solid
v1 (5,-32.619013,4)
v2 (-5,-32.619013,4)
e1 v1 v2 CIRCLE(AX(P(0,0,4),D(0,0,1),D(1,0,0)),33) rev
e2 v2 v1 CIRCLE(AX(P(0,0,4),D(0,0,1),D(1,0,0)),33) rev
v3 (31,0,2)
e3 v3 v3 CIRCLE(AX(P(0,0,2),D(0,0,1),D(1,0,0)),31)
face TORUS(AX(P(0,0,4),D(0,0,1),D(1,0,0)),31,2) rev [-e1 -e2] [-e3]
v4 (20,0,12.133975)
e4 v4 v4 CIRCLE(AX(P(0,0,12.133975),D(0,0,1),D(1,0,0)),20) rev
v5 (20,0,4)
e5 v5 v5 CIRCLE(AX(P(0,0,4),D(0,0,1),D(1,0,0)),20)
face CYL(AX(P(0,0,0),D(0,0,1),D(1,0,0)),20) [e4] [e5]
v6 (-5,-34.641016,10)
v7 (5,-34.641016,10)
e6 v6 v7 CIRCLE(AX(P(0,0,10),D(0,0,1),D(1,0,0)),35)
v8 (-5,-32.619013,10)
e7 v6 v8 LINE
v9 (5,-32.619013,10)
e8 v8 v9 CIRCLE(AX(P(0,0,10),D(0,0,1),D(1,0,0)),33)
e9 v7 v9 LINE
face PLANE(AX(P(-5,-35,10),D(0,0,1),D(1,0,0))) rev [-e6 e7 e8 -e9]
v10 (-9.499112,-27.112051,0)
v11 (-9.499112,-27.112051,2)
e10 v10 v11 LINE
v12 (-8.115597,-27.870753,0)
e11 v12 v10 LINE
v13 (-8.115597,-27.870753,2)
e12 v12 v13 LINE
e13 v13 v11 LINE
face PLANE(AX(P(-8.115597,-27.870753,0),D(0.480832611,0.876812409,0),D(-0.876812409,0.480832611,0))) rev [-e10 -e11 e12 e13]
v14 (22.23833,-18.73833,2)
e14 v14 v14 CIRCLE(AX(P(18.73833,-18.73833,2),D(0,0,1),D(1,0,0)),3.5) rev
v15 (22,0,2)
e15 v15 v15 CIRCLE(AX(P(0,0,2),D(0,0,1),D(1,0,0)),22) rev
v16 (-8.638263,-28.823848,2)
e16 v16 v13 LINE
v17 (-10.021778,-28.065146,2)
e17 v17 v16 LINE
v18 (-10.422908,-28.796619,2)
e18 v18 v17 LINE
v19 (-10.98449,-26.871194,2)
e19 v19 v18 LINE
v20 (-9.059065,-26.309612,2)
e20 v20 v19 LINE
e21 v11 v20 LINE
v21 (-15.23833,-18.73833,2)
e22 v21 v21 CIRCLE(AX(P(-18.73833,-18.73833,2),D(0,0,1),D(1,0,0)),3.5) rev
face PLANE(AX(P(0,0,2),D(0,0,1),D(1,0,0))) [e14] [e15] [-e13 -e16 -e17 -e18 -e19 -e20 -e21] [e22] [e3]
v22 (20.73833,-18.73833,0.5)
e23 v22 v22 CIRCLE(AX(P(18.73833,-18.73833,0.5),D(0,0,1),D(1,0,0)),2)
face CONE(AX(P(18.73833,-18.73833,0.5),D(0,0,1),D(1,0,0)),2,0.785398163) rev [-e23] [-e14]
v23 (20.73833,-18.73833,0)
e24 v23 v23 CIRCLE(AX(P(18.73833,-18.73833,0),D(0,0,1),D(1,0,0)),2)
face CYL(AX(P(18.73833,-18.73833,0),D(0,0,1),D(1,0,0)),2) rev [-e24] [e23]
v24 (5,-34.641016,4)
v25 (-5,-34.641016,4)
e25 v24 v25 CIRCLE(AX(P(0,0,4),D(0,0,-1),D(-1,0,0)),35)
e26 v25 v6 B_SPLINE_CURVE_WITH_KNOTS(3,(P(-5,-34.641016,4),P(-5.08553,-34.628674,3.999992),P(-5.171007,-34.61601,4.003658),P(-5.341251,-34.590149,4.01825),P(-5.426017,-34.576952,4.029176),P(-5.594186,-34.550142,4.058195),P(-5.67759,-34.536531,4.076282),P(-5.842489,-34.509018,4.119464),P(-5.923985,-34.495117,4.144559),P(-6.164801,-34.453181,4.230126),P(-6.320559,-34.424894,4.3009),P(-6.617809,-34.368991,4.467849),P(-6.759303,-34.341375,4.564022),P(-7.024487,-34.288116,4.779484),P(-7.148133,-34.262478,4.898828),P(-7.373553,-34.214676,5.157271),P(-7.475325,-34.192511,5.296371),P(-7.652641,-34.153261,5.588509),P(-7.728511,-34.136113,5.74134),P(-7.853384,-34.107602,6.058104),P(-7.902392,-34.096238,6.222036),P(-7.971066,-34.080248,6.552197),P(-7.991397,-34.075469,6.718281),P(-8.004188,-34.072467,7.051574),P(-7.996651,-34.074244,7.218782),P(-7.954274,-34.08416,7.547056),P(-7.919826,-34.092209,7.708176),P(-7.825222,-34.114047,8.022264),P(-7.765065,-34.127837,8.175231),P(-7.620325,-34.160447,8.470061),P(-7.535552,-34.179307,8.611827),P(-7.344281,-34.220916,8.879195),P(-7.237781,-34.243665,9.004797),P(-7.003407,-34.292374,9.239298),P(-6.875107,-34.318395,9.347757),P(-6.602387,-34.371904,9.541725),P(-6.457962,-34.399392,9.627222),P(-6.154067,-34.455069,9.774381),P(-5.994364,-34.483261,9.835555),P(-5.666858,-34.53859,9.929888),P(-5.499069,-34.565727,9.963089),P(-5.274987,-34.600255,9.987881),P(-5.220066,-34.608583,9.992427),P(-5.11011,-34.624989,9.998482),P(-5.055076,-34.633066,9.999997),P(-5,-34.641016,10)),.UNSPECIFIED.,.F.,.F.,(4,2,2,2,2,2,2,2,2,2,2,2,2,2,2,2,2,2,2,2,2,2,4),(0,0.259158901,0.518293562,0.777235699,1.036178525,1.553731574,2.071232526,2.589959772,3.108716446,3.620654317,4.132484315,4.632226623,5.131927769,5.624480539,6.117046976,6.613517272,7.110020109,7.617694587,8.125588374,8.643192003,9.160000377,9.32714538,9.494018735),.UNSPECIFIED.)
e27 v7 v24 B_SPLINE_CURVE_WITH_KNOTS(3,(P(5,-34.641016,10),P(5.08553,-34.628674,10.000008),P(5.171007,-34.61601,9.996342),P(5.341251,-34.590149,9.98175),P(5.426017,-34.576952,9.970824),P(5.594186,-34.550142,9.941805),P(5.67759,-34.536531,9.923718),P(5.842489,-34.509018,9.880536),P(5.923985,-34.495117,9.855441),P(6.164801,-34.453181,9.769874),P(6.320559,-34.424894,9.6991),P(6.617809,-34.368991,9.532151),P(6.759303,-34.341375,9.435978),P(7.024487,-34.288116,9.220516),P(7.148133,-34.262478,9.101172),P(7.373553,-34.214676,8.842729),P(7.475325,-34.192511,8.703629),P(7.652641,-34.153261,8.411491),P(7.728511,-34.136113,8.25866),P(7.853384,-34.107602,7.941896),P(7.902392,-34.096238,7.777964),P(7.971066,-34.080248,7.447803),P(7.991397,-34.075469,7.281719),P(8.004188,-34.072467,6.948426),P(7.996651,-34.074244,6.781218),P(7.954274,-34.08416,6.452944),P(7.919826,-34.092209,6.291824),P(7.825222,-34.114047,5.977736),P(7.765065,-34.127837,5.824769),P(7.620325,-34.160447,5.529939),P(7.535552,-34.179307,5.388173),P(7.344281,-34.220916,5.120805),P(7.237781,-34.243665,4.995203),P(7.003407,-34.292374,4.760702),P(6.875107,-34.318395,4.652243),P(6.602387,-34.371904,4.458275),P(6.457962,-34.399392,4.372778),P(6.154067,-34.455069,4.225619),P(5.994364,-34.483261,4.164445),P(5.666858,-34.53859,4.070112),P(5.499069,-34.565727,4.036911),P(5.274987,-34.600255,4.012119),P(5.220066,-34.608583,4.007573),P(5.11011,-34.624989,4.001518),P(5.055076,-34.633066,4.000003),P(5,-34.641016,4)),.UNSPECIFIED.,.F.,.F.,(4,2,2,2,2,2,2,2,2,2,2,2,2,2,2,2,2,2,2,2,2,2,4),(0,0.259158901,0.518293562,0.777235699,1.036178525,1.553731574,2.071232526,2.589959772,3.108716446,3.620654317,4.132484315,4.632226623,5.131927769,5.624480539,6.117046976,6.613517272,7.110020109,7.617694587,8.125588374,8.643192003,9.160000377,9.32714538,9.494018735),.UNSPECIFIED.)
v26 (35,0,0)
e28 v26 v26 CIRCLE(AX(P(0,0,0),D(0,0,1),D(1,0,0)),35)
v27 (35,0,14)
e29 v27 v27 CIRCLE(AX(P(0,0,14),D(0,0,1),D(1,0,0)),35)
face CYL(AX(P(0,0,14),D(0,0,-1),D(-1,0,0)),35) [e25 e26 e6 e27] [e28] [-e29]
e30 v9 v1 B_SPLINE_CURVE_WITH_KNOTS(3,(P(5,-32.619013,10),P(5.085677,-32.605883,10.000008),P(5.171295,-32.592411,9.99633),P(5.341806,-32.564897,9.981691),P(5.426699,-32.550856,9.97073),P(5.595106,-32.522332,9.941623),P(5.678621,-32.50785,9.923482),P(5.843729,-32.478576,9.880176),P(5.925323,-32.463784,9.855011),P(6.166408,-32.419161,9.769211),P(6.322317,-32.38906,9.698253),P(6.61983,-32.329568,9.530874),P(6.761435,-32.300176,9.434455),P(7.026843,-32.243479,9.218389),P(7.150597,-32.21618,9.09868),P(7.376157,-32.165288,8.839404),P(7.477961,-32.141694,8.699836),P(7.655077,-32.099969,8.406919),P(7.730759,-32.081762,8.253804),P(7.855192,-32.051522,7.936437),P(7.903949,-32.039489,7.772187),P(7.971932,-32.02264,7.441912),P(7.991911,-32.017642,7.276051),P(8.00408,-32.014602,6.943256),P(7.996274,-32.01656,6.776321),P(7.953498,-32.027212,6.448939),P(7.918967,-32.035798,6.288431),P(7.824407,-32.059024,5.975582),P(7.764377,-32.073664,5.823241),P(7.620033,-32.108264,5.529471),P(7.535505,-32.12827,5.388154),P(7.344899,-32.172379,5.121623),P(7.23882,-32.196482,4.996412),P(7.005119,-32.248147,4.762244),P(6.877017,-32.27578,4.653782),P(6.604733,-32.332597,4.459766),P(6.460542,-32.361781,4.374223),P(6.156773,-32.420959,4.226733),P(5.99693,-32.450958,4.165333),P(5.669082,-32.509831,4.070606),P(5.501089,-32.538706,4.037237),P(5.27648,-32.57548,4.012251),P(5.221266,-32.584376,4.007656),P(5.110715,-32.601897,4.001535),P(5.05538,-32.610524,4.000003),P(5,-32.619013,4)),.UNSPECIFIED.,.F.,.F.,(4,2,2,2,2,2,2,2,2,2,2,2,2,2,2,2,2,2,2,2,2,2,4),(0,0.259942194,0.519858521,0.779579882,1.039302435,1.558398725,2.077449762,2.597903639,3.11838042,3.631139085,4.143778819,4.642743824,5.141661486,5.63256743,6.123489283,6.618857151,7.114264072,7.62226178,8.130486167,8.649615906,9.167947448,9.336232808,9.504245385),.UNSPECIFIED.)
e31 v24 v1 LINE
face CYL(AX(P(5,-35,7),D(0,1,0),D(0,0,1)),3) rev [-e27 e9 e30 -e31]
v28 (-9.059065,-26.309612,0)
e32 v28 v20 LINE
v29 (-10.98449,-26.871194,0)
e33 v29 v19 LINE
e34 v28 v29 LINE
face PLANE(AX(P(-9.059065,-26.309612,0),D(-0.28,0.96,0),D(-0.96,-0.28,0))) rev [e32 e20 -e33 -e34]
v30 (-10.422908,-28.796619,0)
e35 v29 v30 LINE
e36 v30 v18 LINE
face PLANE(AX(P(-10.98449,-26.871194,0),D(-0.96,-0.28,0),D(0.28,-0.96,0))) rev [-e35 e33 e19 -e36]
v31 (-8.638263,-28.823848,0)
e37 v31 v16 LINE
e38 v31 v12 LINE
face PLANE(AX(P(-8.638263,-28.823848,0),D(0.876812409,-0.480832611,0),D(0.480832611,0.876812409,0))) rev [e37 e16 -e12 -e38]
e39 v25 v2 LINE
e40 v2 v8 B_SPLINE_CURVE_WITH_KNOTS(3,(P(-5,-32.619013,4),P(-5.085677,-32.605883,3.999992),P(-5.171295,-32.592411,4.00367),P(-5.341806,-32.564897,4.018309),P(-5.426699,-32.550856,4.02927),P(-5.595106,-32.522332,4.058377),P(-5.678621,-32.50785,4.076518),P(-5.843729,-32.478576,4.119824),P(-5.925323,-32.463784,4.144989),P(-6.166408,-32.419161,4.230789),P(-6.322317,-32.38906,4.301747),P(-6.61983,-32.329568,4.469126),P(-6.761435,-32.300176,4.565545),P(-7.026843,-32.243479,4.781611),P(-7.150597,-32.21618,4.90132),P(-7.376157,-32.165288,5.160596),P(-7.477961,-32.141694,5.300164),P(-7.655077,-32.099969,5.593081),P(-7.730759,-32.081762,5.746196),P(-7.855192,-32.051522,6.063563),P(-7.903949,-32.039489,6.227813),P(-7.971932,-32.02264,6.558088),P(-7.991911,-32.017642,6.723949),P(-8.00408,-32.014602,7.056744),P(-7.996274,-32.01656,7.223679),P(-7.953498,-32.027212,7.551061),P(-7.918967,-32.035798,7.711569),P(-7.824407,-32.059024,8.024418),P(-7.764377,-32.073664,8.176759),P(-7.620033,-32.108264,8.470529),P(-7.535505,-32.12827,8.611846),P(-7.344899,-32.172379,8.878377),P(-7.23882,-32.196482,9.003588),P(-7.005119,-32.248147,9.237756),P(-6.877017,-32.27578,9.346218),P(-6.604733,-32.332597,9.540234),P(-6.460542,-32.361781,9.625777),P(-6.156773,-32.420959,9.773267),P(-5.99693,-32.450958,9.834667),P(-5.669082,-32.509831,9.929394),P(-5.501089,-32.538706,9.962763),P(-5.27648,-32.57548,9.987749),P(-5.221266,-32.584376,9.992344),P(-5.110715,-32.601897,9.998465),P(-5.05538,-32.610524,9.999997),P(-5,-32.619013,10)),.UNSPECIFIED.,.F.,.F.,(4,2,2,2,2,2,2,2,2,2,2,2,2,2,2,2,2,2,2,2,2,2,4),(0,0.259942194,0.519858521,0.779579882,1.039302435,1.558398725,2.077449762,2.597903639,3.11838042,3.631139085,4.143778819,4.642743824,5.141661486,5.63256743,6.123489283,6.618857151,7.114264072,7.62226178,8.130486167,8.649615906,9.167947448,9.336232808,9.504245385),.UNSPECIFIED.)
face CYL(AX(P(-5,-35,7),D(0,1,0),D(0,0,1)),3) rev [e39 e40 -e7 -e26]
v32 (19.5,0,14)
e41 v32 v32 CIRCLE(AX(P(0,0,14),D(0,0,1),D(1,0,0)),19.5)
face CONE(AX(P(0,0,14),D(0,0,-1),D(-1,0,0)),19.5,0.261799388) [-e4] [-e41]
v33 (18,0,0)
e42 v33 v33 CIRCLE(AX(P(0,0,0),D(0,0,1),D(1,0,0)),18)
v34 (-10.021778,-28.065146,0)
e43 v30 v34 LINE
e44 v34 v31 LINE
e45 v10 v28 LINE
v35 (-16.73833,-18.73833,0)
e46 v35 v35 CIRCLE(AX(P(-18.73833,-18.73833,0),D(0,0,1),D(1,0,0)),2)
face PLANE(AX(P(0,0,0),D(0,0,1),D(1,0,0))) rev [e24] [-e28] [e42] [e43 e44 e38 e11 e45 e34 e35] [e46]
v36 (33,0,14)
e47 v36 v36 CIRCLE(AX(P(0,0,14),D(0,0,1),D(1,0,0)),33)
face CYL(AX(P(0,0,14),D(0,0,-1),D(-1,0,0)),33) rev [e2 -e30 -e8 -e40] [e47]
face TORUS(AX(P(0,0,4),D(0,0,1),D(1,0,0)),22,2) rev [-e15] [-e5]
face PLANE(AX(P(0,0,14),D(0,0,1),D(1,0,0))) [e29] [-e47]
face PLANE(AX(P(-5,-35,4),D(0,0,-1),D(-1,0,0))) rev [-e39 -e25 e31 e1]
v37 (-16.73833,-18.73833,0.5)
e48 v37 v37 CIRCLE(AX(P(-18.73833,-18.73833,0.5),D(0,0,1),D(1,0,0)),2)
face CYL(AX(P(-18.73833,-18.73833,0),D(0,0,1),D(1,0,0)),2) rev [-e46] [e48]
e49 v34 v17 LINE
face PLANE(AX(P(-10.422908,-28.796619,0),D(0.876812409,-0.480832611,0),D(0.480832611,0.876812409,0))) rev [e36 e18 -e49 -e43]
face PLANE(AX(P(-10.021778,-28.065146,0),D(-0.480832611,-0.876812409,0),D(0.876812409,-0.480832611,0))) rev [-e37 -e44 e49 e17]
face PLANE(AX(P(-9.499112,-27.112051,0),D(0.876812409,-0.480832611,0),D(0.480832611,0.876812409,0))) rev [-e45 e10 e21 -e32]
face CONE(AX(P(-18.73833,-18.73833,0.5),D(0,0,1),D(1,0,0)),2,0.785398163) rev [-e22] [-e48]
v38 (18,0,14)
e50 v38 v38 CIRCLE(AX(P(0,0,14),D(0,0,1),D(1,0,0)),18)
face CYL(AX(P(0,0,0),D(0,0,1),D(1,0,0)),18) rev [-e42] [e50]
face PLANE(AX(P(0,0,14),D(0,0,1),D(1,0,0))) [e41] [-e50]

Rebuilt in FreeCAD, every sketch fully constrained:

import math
import FreeCAD as App
import Part
import Sketcher


def edges_at(feature, points):
    """Names of the edges that pass closest to the given points."""
    edges = feature.Shape.Edges
    near = lambda p: min(range(len(edges)), key=lambda i: edges[i].distToShape(Part.Vertex(*p))[0])
    return sorted({f"Edge{near(p) + 1}" for p in points})


def faces_at(feature, points):
    """Names of the faces that lie closest to the given points."""
    faces = feature.Shape.Faces
    near = lambda p: min(range(len(faces)), key=lambda i: faces[i].distToShape(Part.Vertex(*p))[0])
    return sorted({f"Face{near(p) + 1}" for p in points})


def add_polygon(sketch, points):
    """Adds a closed chain of lines whose ends are joined by coincident constraints."""
    first, n = sketch.GeometryCount, len(points)
    for a, b in zip(points, points[1:] + points[:1]):
        sketch.addGeometry(Part.LineSegment(App.Vector(*a, 0), App.Vector(*b, 0)), False)
    for i in range(n):
        sketch.addConstraint(Sketcher.Constraint("Coincident", first + i, 2, first + (i + 1) % n, 1))

doc = App.newDocument("Part")
params = doc.addObject("Spreadsheet::Sheet", "Params")
for row, (alias, value) in enumerate([
    ("sketch1_diameter", "70 mm"),
    ("pad1_length", "14 mm"),
    ("sketch2_diameter", "36 mm"),
    ("thickness_wall", "2 mm"),
    ("fillet_radius", "2 mm"),
    ("sketch3_radius", "3 mm"),
    ("sketch3_width", "10 mm"),
    ("sketch4_diameter", "4 mm"),
    ("chamfer_size", "1.5 mm"),
    ("chamfer2_size", "0.5 mm"),
    ("chamfer2_size2", "1.866025 mm"),
], start=1):
    params.set(f"A{row}", alias)
    params.set(f"B{row}", "=" + value)
    params.setAlias(f"B{row}", alias)

body = doc.addObject("PartDesign::Body", "Body")

# Sketch on XY plane
sketch1 = body.newObject("Sketcher::SketchObject", "Sketch")
sketch1.AttachmentSupport = (doc.getObject("XY_Plane"), [""])
sketch1.MapMode = "FlatFace"
sketch1.addGeometry(Part.Circle(App.Vector(0, 0, 0), App.Vector(0, 0, 1), 35), False)
sketch1.addConstraint(Sketcher.Constraint("Coincident", 0, 3, -1, 1))
sketch1.addConstraint(Sketcher.Constraint("Diameter", 0, 70.0))
sketch1.setExpression("Constraints[1]", "Params.sketch1_diameter")
pad1 = body.newObject("PartDesign::Pad", "Pad")
pad1.Profile = sketch1
pad1.setExpression("Length", "Params.pad1_length")

# Sketch on XY plane
sketch2 = body.newObject("Sketcher::SketchObject", "Sketch001")
sketch2.AttachmentSupport = (doc.getObject("XY_Plane"), [""])
sketch2.MapMode = "FlatFace"
sketch2.AttachmentOffset = App.Placement(App.Vector(0, 0, 14), App.Rotation())
sketch2.addGeometry(Part.Circle(App.Vector(0, 0, 0), App.Vector(0, 0, 1), 18), False)
sketch2.addConstraint(Sketcher.Constraint("Coincident", 0, 3, -1, 1))
sketch2.addConstraint(Sketcher.Constraint("Diameter", 0, 36.0))
sketch2.setExpression("Constraints[1]", "Params.sketch2_diameter")
pocket1 = body.newObject("PartDesign::Pocket", "Pocket")
pocket1.Profile = sketch2
pocket1.Type = "ThroughAll"
doc.recompute()

thickness = body.newObject("PartDesign::Thickness", "Thickness")
thickness.Base = (pocket1, faces_at(pocket1, [(-14, -14, 14)]))
thickness.setExpression("Value", "Params.thickness_wall")
thickness.Reversed = True
thickness.Join = "Intersection"
doc.recompute()

fillet = body.newObject("PartDesign::Fillet", "Fillet")
fillet.Base = (thickness, edges_at(thickness, [(-33, 0, 2), (-20, 0, 2)]))
fillet.setExpression("Radius", "Params.fillet_radius")

# Sketch on XZ plane
sketch3 = body.newObject("Sketcher::SketchObject", "Sketch002")
sketch3.AttachmentSupport = (doc.getObject("XZ_Plane"), [""])
sketch3.MapMode = "FlatFace"
sketch3.AttachmentOffset = App.Placement(App.Vector(0, 0, 22), App.Rotation())
sketch3.addGeometry(Part.LineSegment(App.Vector(5, 4, 0), App.Vector(-5, 4, 0)), False)
sketch3.addGeometry(Part.ArcOfCircle(Part.Circle(App.Vector(-5, 7, 0), App.Vector(0, 0, 1), 3), math.radians(90), math.radians(270)), False)
sketch3.addGeometry(Part.LineSegment(App.Vector(-5, 10, 0), App.Vector(5, 10, 0)), False)
sketch3.addGeometry(Part.ArcOfCircle(Part.Circle(App.Vector(5, 7, 0), App.Vector(0, 0, 1), 3), math.radians(-90), math.radians(90)), False)
sketch3.addConstraint(Sketcher.Constraint("Tangent", 0, 2, 1, 2))
sketch3.addConstraint(Sketcher.Constraint("Tangent", 1, 1, 2, 1))
sketch3.addConstraint(Sketcher.Constraint("Tangent", 2, 2, 3, 2))
sketch3.addConstraint(Sketcher.Constraint("Tangent", 3, 1, 0, 1))
sketch3.addConstraint(Sketcher.Constraint("Horizontal", 0))
sketch3.addConstraint(Sketcher.Constraint("Horizontal", 2))
sketch3.addConstraint(Sketcher.Constraint("Radius", 1, 3.0))
sketch3.addConstraint(Sketcher.Constraint("DistanceX", 0, 2, 0, 1, 10.0))
sketch3.addConstraint(Sketcher.Constraint("DistanceX", 1, 3, -1, 1, 5.0))
sketch3.addConstraint(Sketcher.Constraint("DistanceY", -1, 1, 1, 3, 7.0))
sketch3.setExpression("Constraints[6]", "Params.sketch3_radius")
sketch3.setExpression("Constraints[7]", "Params.sketch3_width")
pocket2 = body.newObject("PartDesign::Pocket", "Pocket001")
pocket2.Profile = sketch3
pocket2.Type = "ThroughAll"
pocket2.Reversed = True

# Sketch on XY plane
sketch4 = body.newObject("Sketcher::SketchObject", "Sketch003")
sketch4.AttachmentSupport = (doc.getObject("XY_Plane"), [""])
sketch4.MapMode = "FlatFace"
sketch4.AttachmentOffset = App.Placement(App.Vector(0, 0, 2), App.Rotation())
sketch4.addGeometry(Part.Circle(App.Vector(-18.73833, -18.73833, 0), App.Vector(0, 0, 1), 2), False)  # 0
sketch4.addGeometry(Part.Circle(App.Vector(18.73833, -18.73833, 0), App.Vector(0, 0, 1), 2), False)  # 1
add_polygon(sketch4, [(-8.115597, -27.870753), (-9.499112, -27.112051), (-9.059065, -26.309612), (-10.98449, -26.871194), (-10.422908, -28.796619), (-10.021778, -28.065146), (-8.638263, -28.823848)])  # lines 2-8
sketch4.addConstraint(Sketcher.Constraint("Equal", 0, 1))
sketch4.addConstraint(Sketcher.Constraint("Symmetric", 0, 3, 1, 3, -2))
sketch4.addConstraint(Sketcher.Constraint("Perpendicular", 2, 3))
sketch4.addConstraint(Sketcher.Constraint("Perpendicular", 4, 5))
sketch4.addConstraint(Sketcher.Constraint("Parallel", 3, 6))
sketch4.addConstraint(Sketcher.Constraint("Perpendicular", 6, 7))
sketch4.addConstraint(Sketcher.Constraint("Perpendicular", 7, 8))
sketch4.addConstraint(Sketcher.Constraint("Equal", 4, 5))
sketch4.addConstraint(Sketcher.Constraint("Equal", 2, 7))
sketch4.addConstraint(Sketcher.Constraint("Diameter", 0, 4.0))
sketch4.addConstraint(Sketcher.Constraint("Distance", 8, 1.087))
sketch4.addConstraint(Sketcher.Constraint("DistanceY", 7, 2, 6, 2, 0.758702))
sketch4.addConstraint(Sketcher.Constraint("Distance", 2, 1.577892))
sketch4.addConstraint(Sketcher.Constraint("Distance", 4, 2.00565))
sketch4.addConstraint(Sketcher.Constraint("Distance", 6, 0.834241))
sketch4.addConstraint(Sketcher.Constraint("DistanceX", 0, 3, -1, 1, 18.73833))
sketch4.addConstraint(Sketcher.Constraint("DistanceY", 0, 3, -1, 1, 18.73833))
sketch4.addConstraint(Sketcher.Constraint("DistanceY", 2, 2, -1, 1, 27.112051))
sketch4.addConstraint(Sketcher.Constraint("DistanceX", 4, 2, -1, 1, 10.98449))
sketch4.setExpression("Constraints[16]", "Params.sketch4_diameter")
pocket3 = body.newObject("PartDesign::Pocket", "Pocket002")
pocket3.Profile = sketch4
pocket3.Type = "ThroughAll"
doc.recompute()

chamfer = body.newObject("PartDesign::Chamfer", "Chamfer")
chamfer.Base = (pocket3, edges_at(pocket3, [(-20.738, -18.738, 2), (16.738, -18.738, 2)]))
chamfer.setExpression("Size", "Params.chamfer_size")
doc.recompute()

chamfer2 = body.newObject("PartDesign::Chamfer", "Chamfer001")
chamfer2.Base = (chamfer, edges_at(chamfer, [(-20, 0, 14)]))
chamfer2.ChamferType = "Two distances"
chamfer2.setExpression("Size", "Params.chamfer2_size")
chamfer2.setExpression("Size2", "Params.chamfer2_size2")
chamfer2.FlipDirection = True

doc.recompute()
